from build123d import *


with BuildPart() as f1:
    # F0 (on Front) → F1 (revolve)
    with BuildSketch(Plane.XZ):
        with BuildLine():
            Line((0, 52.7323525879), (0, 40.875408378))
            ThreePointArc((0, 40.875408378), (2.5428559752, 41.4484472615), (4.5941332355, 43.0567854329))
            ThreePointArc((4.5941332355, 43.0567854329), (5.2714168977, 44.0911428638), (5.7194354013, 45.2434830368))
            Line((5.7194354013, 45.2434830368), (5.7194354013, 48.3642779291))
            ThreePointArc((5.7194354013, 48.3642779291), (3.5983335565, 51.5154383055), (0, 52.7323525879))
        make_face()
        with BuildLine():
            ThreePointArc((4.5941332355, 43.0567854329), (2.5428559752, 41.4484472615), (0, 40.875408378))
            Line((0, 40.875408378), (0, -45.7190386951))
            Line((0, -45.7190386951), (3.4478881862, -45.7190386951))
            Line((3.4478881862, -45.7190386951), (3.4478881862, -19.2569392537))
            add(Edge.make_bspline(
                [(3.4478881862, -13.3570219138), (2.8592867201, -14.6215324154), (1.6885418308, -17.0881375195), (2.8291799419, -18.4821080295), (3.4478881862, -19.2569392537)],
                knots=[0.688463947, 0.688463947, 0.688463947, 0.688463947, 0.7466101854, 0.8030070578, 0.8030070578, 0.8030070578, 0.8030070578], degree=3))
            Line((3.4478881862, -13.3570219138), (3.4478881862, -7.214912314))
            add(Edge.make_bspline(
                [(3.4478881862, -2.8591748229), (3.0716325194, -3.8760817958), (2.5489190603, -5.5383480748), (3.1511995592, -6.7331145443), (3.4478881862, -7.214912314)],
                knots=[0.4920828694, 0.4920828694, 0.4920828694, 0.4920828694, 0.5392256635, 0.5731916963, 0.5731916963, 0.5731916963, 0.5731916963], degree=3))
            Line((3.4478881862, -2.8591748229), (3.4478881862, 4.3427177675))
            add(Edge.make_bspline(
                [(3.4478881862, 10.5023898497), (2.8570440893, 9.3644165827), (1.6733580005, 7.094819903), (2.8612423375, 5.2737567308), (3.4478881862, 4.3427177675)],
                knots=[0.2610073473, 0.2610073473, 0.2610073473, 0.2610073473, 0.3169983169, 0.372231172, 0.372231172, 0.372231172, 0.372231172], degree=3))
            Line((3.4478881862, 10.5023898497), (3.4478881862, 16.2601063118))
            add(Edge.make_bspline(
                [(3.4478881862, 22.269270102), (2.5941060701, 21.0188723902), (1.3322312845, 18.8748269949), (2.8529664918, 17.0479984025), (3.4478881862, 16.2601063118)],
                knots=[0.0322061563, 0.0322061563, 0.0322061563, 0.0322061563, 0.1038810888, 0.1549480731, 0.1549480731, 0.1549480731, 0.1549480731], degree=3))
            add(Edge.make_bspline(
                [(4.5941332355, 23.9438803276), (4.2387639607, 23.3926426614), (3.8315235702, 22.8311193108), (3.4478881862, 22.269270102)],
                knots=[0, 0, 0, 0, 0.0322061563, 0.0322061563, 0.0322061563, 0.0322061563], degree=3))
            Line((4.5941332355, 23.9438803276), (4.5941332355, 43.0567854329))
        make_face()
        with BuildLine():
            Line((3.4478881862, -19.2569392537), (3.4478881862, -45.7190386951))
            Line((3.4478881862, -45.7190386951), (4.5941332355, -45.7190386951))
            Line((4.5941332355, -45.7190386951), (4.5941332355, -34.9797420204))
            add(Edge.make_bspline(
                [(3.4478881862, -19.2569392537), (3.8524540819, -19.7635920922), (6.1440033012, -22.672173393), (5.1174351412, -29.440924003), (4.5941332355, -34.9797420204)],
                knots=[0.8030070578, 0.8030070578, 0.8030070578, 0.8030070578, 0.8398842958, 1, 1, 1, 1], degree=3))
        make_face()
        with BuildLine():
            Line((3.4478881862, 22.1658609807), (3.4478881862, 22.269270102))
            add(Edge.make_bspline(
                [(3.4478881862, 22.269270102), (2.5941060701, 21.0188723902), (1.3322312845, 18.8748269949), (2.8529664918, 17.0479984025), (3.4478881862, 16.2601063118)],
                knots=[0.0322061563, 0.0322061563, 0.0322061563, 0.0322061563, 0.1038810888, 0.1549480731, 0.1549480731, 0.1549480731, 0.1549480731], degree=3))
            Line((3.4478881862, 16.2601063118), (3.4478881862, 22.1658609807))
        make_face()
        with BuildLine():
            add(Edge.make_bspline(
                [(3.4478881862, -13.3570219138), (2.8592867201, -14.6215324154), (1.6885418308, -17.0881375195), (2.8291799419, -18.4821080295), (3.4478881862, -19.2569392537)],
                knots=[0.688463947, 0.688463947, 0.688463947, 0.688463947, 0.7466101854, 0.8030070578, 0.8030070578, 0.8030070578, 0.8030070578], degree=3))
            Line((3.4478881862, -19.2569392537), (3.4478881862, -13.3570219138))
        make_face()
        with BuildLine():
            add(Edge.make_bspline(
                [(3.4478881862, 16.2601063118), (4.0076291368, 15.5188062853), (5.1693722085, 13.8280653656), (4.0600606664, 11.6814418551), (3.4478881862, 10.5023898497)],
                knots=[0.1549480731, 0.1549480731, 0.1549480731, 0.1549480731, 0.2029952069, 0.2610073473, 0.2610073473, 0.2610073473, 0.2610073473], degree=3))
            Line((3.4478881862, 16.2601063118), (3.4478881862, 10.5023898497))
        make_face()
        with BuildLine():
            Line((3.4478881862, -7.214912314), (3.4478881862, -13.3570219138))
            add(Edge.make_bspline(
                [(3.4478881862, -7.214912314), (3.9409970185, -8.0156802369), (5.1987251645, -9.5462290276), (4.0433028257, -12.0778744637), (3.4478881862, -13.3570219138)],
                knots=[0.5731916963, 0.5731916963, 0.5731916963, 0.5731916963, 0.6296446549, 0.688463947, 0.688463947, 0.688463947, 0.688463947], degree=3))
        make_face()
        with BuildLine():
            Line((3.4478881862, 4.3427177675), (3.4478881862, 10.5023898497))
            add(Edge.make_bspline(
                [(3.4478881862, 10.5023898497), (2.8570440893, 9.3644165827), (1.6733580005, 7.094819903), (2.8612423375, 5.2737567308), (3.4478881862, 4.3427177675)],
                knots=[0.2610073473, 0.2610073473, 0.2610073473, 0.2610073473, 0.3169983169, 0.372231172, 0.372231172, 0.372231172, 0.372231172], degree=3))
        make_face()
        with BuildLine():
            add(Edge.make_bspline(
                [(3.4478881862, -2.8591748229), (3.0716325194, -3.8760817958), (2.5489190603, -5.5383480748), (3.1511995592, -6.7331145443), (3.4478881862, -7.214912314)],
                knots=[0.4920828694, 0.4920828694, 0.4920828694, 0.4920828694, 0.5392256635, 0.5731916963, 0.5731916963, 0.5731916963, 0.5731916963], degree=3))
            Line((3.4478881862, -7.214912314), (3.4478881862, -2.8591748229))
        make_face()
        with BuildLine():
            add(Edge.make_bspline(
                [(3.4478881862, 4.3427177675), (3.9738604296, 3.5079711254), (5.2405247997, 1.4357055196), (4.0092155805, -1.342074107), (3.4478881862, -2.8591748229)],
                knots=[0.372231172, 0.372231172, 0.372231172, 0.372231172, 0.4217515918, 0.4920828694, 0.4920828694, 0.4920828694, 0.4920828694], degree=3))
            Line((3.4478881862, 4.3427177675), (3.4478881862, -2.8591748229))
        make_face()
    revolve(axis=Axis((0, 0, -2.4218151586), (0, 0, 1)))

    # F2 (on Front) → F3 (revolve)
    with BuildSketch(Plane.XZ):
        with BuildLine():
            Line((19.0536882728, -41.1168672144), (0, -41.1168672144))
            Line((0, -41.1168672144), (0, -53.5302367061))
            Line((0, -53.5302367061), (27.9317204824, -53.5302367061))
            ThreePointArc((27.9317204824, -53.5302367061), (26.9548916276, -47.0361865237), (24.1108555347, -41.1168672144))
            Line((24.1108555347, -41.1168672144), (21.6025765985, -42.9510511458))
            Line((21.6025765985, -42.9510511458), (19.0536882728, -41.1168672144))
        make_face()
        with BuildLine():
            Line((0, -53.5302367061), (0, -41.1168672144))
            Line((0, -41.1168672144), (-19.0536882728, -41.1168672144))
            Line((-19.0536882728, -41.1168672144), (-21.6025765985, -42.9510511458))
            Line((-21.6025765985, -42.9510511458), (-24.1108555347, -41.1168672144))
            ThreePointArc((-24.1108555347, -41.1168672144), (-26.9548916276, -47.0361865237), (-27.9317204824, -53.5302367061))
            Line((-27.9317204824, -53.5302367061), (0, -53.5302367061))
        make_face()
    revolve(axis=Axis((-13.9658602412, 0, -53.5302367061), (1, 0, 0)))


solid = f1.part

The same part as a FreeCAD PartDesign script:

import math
import FreeCAD as App
import Part
import Sketcher

V = App.Vector

doc = App.newDocument("Part")
body = doc.addObject("PartDesign::Body", "Body")

sketch1 = doc.addObject("Sketcher::SketchObject", "Sketch")
body.addObject(sketch1)
sketch1.AttachmentSupport = (doc.XZ_Plane, [""])
sketch1.MapMode = "FlatFace"
sketch1.addGeometry([
    Part.LineSegment(V(0, 52.732353, 0), V(0, -45.719039, 0)),
    Part.LineSegment(V(0, -45.719039, 0), V(4.594133, -45.719039, 0)),
    Part.LineSegment(V(4.594133, -45.719039, 0), V(4.594133, -34.979742, 0)),
    Part.BSplineCurve([V(3.447888, -19.256939, 0), V(3.852454, -19.763592, 0), V(6.144003, -22.672173, 0), V(5.117435, -29.440924, 0), V(4.594133, -34.979742, 0)], [4, 1, 4], [0.803007058, 0.839884296, 1], False, 3, [1, 1, 1, 1, 1], False),
    Part.LineSegment(V(3.447888, -19.256939, 0), V(3.447888, -13.357022, 0)),
    Part.BSplineCurve([V(3.447888, -7.214912, 0), V(3.940997, -8.01568, 0), V(5.198725, -9.546229, 0), V(4.043303, -12.077874, 0), V(3.447888, -13.357022, 0)], [4, 1, 4], [0.573191696, 0.629644655, 0.688463947], False, 3, [1, 1, 1, 1, 1], False),
    Part.LineSegment(V(3.447888, -7.214912, 0), V(3.447888, -2.859175, 0)),
    Part.BSplineCurve([V(3.447888, 4.342718, 0), V(3.97386, 3.507971, 0), V(5.240525, 1.435706, 0), V(4.009216, -1.342074, 0), V(3.447888, -2.859175, 0)], [4, 1, 4], [0.372231172, 0.421751592, 0.492082869], False, 3, [1, 1, 1, 1, 1], False),
    Part.LineSegment(V(3.447888, 4.342718, 0), V(3.447888, 10.50239, 0)),
    Part.BSplineCurve([V(3.447888, 16.260106, 0), V(4.007629, 15.518806, 0), V(5.169372, 13.828065, 0), V(4.060061, 11.681442, 0), V(3.447888, 10.50239, 0)], [4, 1, 4], [0.154948073, 0.202995207, 0.261007347], False, 3, [1, 1, 1, 1, 1], False),
    Part.LineSegment(V(3.447888, 16.260106, 0), V(3.447888, 22.26927, 0)),
    Part.BSplineCurve([V(4.594133, 23.94388, 0), V(4.238764, 23.392643, 0), V(3.831524, 22.831119, 0), V(3.447888, 22.26927, 0)], [4, 4], [0, 0.032206156], False, 3, [1, 1, 1, 1], False),
    Part.LineSegment(V(4.594133, 23.94388, 0), V(4.594133, 43.056785, 0)),
    Part.ArcOfCircle(Part.Circle(V(0, 46.80388, 0), V(0, 0, 1), 5.928472), math.radians(-39.201583), math.radians(-15.26026)),
    Part.LineSegment(V(5.719435, 45.243483, 0), V(5.719435, 48.364278, 0)),
    Part.ArcOfCircle(Part.Circle(V(0, 46.80388, 0), V(0, 0, 1), 5.928472), math.radians(15.26026), math.radians(90)),
], False)
sketch1.addConstraint([
    Sketcher.Constraint("Block", 3),
    Sketcher.Constraint("Block", 5),
    Sketcher.Constraint("Block", 7),
    Sketcher.Constraint("Block", 9),
    Sketcher.Constraint("Block", 11),
    Sketcher.Constraint("Coincident", 0, 2, 1, 1),
    Sketcher.Constraint("Coincident", 1, 2, 2, 1),
    Sketcher.Constraint("Coincident", 2, 2, 3, 2),
    Sketcher.Constraint("Coincident", 3, 1, 4, 1),
    Sketcher.Constraint("Coincident", 4, 2, 5, 2),
    Sketcher.Constraint("Coincident", 5, 1, 6, 1),
    Sketcher.Constraint("Coincident", 6, 2, 7, 2),
    Sketcher.Constraint("Coincident", 7, 1, 8, 1),
    Sketcher.Constraint("Coincident", 8, 2, 9, 2),
    Sketcher.Constraint("Coincident", 9, 1, 10, 1),
    Sketcher.Constraint("Coincident", 10, 2, 11, 2),
    Sketcher.Constraint("Coincident", 11, 1, 12, 1),
    Sketcher.Constraint("Coincident", 12, 2, 13, 1),
    Sketcher.Constraint("Coincident", 13, 2, 14, 1),
    Sketcher.Constraint("Coincident", 14, 2, 15, 1),
    Sketcher.Constraint("Coincident", 15, 2, 0, 1),
    Sketcher.Constraint("Vertical", 0),
    Sketcher.Constraint("Horizontal", 1),
    Sketcher.Constraint("Vertical", 2),
    Sketcher.Constraint("Vertical", 12),
    Sketcher.Constraint("Vertical", 14),
    Sketcher.Constraint("Coincident", 15, 3, 13, 3),
    Sketcher.Constraint("Equal", 13, 15),
    Sketcher.Constraint("PointOnObject", 13, 3, -2),
    Sketcher.Constraint("PointOnObject", 0, 2, -2),
    Sketcher.Constraint("Radius", 13, 5.928472),
    Sketcher.Constraint("DistanceY", 0, 2, 0, 1, 98.451391),
    Sketcher.Constraint("DistanceY", 2, 1, 2, 2, 10.739297),
    Sketcher.Constraint("DistanceY", 14, 1, 14, 2, 3.120795),
])
revolution = doc.addObject("PartDesign::Revolution", "Revolution")
body.addObject(revolution)
revolution.Profile = sketch1
revolution.ReferenceAxis = (sketch1, ["V_Axis"])
revolution.Angle = 360

sketch2 = doc.addObject("Sketcher::SketchObject", "Sketch001")
body.addObject(sketch2)
sketch2.AttachmentSupport = (doc.XZ_Plane, [""])
sketch2.MapMode = "FlatFace"
sketch2.addGeometry([
    Part.LineSegment(V(19.1, -41.1, 0), V(-19.1, -41.1, 0)),
    Part.LineSegment(V(-19.1, -41.1, 0), V(-21.6, -43, 0)),
    Part.LineSegment(V(-21.6, -43, 0), V(-24.1, -41.1, 0)),
    Part.ArcOfCircle(Part.Circle(V(-5.9, -53.5, 0), V(0, 0, 1), 22.1), math.radians(146), math.radians(180)),
    Part.LineSegment(V(-27.9, -53.5, 0), V(27.9, -53.5, 0)),
    Part.ArcOfCircle(Part.Circle(V(5.9, -53.5, 0), V(0, 0, 1), 22.1), math.radians(0), math.radians(34)),
    Part.LineSegment(V(24.1, -41.1, 0), V(21.6, -43, 0)),
    Part.LineSegment(V(21.6, -43, 0), V(19.1, -41.1, 0)),
], False)
sketch2.addGeometry(Part.LineSegment(V(-27.9, -53.5, 0), V(27.9, -53.5, 0)), True)
sketch2.addConstraint([
    Sketcher.Constraint("Coincident", 0, 2, 1, 1),
    Sketcher.Constraint("Coincident", 1, 2, 2, 1),
    Sketcher.Constraint("Coincident", 2, 2, 3, 1),
    Sketcher.Constraint("Coincident", 3, 2, 4, 1),
    Sketcher.Constraint("Coincident", 4, 2, 5, 1),
    Sketcher.Constraint("Coincident", 5, 2, 6, 1),
    Sketcher.Constraint("Coincident", 6, 2, 7, 1),
    Sketcher.Constraint("Coincident", 7, 2, 0, 1),
    Sketcher.Constraint("Horizontal", 0),
    Sketcher.Constraint("Horizontal", 4),
    Sketcher.Constraint("Horizontal", 8),
    Sketcher.Constraint("Coincident", 8, 1, 3, 2),
    Sketcher.Constraint("Equal", 3, 5),
    Sketcher.Constraint("Symmetric", 3, 3, 5, 3, -2),
    Sketcher.Constraint("Symmetric", 1, 2, 6, 2, -2),
    Sketcher.Constraint("Horizontal", 0, 2, 2, 2),
    Sketcher.Constraint("Horizontal", 5, 3, 3, 2),
    Sketcher.Constraint("Horizontal", 2, 2, 5, 2),
    Sketcher.Constraint("Equal", 4, 8),
    Sketcher.Constraint("Equal", 1, 7),
    Sketcher.Constraint("Radius", 3, 22.074943),
    Sketcher.Constraint("DistanceX", 4, 1, 4, 2, 55.863441),
    Sketcher.Constraint("DistanceX", 1, 2, 3, 3, 15.745799),
    Sketcher.Constraint("Distance", 2, 3.107361),
    Sketcher.Constraint("DistanceX", 0, 2, 0, 1, 38.107377),
    Sketcher.Constraint("DistanceY", 1, 2, -1, 1, 42.951051),
    Sketcher.Constraint("DistanceY", 3, 3, 0, 2, 12.413369),
])
revolution2 = doc.addObject("PartDesign::Revolution", "Revolution001")
body.addObject(revolution2)
revolution2.Profile = sketch2
revolution2.ReferenceAxis = (sketch2, ["Axis0"])
revolution2.Angle = 360

doc.recompute()
